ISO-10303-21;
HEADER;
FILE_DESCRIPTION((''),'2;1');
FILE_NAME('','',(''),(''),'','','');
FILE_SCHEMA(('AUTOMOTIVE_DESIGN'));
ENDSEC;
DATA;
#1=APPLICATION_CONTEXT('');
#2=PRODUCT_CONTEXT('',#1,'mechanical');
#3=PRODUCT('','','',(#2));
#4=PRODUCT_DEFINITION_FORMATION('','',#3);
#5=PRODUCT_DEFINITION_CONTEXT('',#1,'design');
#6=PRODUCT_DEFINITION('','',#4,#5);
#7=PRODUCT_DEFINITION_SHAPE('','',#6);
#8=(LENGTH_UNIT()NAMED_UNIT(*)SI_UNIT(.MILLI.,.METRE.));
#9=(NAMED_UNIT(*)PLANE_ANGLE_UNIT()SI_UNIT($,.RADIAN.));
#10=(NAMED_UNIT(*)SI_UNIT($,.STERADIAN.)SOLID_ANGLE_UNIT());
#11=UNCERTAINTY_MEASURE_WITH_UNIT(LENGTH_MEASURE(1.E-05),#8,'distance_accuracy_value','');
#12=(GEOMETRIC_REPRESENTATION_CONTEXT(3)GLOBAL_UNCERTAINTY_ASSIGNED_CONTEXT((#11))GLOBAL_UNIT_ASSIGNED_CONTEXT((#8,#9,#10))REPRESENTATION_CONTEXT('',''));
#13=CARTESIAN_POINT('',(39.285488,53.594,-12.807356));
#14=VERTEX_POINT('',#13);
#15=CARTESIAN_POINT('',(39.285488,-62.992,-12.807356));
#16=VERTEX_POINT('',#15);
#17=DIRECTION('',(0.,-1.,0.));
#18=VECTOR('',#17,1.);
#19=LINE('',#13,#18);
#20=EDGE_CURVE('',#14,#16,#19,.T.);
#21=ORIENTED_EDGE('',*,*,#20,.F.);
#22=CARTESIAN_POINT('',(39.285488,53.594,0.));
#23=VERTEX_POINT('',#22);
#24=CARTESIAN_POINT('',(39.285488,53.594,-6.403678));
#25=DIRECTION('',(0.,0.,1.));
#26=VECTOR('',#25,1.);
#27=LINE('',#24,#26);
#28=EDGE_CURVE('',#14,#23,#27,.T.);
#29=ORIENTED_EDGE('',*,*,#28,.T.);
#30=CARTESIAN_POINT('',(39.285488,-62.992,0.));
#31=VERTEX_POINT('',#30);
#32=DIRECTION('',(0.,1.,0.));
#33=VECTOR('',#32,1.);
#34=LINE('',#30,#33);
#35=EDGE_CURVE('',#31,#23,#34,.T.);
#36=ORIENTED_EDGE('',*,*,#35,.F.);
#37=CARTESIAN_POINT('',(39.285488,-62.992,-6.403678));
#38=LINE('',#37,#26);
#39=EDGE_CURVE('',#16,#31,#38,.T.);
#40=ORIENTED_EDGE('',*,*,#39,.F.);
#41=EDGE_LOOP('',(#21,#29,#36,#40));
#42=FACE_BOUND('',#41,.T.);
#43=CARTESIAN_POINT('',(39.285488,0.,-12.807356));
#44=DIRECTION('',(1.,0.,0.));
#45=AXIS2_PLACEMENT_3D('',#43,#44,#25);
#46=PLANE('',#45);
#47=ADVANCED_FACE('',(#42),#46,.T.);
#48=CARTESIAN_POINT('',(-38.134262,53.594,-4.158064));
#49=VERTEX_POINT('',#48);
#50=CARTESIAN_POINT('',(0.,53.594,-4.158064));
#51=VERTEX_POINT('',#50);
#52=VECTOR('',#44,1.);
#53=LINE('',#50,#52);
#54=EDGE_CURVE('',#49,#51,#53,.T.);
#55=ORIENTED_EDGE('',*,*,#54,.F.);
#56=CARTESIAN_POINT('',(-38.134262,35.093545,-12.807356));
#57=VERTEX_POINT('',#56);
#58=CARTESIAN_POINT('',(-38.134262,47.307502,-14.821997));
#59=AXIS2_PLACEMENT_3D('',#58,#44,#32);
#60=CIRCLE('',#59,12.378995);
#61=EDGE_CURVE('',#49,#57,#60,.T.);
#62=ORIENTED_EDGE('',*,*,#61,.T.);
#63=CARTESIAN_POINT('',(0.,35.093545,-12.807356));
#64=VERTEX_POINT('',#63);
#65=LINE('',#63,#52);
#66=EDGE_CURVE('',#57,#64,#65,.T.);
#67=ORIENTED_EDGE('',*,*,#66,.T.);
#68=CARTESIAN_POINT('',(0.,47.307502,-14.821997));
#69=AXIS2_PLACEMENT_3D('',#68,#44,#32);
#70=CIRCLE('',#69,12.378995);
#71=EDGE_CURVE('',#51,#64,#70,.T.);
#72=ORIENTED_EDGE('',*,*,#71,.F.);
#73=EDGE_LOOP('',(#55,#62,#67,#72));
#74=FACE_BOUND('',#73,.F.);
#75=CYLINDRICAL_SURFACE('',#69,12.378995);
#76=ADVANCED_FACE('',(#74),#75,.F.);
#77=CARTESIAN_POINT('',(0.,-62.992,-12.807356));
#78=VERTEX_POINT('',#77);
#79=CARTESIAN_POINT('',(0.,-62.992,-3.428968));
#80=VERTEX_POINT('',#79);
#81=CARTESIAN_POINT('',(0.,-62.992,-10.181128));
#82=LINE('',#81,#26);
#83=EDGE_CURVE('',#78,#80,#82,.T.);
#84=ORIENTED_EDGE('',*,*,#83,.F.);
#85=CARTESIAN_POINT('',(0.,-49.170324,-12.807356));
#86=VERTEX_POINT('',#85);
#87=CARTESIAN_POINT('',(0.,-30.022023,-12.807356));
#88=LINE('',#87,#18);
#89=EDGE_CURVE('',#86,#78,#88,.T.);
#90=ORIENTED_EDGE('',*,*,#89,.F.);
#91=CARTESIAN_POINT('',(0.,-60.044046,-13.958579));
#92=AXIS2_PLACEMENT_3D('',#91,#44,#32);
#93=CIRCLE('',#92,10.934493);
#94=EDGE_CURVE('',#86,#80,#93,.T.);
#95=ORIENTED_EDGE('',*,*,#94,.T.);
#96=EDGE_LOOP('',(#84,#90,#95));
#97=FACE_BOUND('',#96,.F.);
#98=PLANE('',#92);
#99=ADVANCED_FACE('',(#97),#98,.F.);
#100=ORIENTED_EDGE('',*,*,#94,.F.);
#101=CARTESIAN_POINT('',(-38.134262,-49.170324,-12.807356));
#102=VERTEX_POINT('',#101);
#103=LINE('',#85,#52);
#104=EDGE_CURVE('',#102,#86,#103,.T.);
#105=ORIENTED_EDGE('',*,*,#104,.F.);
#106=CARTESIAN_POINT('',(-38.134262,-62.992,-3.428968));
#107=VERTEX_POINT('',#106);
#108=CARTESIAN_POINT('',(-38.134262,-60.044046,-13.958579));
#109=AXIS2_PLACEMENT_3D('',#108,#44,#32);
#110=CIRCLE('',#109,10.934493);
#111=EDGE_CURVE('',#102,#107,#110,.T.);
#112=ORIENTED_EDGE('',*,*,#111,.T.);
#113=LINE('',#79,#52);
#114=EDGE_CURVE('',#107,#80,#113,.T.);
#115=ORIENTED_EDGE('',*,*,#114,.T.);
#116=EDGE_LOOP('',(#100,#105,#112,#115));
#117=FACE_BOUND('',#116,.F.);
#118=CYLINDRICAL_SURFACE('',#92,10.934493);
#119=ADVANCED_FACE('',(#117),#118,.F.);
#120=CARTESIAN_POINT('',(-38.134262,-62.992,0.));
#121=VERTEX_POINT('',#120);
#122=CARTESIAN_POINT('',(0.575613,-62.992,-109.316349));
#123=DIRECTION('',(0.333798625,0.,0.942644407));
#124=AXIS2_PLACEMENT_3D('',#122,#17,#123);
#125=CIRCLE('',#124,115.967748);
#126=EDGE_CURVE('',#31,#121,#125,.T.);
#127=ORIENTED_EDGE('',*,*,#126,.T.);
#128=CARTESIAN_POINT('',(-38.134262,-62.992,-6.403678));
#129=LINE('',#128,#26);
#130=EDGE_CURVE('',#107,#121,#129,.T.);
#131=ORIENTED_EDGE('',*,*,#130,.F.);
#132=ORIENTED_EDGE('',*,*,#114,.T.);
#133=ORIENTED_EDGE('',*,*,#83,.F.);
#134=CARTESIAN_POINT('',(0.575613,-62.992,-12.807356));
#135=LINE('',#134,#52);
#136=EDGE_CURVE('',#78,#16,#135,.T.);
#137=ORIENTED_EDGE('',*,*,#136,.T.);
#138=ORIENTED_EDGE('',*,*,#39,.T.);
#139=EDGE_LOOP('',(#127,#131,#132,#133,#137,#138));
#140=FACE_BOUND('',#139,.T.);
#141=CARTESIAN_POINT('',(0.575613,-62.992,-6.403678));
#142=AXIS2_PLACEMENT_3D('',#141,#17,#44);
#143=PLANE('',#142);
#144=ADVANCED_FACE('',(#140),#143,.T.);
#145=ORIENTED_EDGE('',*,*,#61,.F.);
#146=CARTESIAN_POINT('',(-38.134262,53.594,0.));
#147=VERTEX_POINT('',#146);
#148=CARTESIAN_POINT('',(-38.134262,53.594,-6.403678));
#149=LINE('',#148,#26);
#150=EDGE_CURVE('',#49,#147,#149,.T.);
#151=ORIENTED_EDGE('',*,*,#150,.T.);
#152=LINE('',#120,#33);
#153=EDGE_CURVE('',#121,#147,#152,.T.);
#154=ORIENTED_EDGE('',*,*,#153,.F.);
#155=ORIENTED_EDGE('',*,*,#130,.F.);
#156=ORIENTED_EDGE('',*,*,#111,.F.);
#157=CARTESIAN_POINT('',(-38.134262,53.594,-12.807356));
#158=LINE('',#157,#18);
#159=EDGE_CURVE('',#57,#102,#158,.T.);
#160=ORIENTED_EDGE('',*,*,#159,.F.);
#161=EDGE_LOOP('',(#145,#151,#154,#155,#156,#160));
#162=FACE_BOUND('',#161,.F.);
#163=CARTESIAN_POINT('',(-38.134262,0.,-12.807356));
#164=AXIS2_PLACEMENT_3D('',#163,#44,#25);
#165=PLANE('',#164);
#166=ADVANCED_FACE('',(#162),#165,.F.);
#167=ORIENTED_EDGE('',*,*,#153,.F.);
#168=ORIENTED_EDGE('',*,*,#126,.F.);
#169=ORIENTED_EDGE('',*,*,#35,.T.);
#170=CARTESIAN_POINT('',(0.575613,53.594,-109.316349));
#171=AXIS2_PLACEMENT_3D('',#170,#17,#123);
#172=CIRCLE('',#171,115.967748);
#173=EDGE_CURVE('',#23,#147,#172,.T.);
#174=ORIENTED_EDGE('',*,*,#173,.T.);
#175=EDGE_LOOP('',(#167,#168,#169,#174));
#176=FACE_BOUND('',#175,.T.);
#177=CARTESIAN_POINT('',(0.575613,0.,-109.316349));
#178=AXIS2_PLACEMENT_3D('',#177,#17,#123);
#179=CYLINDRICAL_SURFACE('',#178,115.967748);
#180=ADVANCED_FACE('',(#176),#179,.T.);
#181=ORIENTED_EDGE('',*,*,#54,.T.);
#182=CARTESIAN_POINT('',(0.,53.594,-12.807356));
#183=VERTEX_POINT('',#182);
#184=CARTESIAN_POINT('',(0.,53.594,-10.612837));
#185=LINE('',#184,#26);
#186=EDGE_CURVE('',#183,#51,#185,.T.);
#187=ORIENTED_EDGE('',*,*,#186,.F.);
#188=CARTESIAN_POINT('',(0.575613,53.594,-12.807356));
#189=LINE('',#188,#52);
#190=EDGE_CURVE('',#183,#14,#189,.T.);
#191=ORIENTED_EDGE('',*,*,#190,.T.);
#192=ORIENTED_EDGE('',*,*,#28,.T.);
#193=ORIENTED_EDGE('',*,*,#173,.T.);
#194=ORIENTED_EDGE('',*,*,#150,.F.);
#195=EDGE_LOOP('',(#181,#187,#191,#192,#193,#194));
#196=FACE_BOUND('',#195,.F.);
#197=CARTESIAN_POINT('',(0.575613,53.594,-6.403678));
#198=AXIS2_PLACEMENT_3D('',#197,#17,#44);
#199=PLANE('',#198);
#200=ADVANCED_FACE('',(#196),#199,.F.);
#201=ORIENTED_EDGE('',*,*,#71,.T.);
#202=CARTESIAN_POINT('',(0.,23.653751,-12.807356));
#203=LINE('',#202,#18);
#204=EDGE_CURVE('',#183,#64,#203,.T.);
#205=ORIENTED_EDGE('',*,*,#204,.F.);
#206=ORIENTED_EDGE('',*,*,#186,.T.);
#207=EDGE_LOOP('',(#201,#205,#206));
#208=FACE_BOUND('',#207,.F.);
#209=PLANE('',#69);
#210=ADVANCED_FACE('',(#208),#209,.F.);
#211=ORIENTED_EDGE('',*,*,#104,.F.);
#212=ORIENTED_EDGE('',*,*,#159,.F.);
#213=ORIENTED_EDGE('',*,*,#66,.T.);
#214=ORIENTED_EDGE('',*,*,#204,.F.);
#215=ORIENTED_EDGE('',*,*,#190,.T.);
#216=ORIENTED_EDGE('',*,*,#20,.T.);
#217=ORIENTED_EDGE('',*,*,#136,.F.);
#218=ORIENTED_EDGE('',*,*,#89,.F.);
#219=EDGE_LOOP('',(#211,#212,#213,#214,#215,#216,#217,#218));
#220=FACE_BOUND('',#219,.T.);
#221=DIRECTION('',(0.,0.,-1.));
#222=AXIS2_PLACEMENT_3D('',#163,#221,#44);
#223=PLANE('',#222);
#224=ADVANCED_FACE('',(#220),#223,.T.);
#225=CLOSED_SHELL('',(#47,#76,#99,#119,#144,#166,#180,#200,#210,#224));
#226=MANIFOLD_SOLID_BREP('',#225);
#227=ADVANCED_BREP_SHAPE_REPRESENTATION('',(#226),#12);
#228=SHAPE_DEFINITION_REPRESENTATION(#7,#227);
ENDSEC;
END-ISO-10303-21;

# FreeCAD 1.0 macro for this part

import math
import FreeCAD as App
import Part
import Sketcher
from FreeCAD import Vector
Q = App.Units.Quantity

doc = App.newDocument("Part")
body = doc.addObject("PartDesign::Body", "Body")

sketch1 = body.newObject("Sketcher::SketchObject", "Sketch")
sketch1.AttachmentSupport = (doc.getObject("XZ_Plane"), [""])
sketch1.MapMode = "FlatFace"
sketch1.addGeometry([
    Part.LineSegment(Vector(-38, 0, 0), Vector(-38, -13, 0)),
    Part.LineSegment(Vector(-38, -13, 0), Vector(39, -13, 0)),
    Part.LineSegment(Vector(39, -13, 0), Vector(39, 0, 0)),
    Part.ArcOfCircle(Part.Circle(Vector(1, -109, 0), Vector(0, 0, 1), 116), math.radians(71), math.radians(109)),
], False)
sketch1.addConstraint([
    Sketcher.Constraint("Coincident", 0, 2, 1, 1),
    Sketcher.Constraint("Coincident", 1, 2, 2, 1),
    Sketcher.Constraint("Coincident", 2, 2, 3, 1),
    Sketcher.Constraint("Coincident", 3, 2, 0, 1),
    Sketcher.Constraint("Vertical", 0),
    Sketcher.Constraint("Horizontal", 1),
    Sketcher.Constraint("Vertical", 2),
    Sketcher.Constraint("PointOnObject", 2, 2, -1),
    Sketcher.Constraint("PointOnObject", 3, 2, -1),
    Sketcher.Constraint("Radius", 3, 115.967748),
    Sketcher.Constraint("DistanceX", 1, 1, 1, 2, 77.41975),
    Sketcher.Constraint("DistanceY", 0, 2, 0, 1, 12.807356),
    Sketcher.Constraint("DistanceX", -1, 1, 3, 3, 0.575613),
])
pad1 = body.newObject("PartDesign::Pad", "Pad")
pad1.Profile = sketch1
pad1.Type = "TwoLengths"
pad1.Length = Q("2.48 in")
pad1.Length2 = Q("2.11 in")

sketch2 = body.newObject("Sketcher::SketchObject", "Sketch001")
sketch2.AttachmentSupport = (doc.getObject("YZ_Plane"), [""])
sketch2.MapMode = "FlatFace"
sketch2.addGeometry([
    Part.Circle(Vector(-60, -14, 0), Vector(0, 0, 1), 11),
    Part.Circle(Vector(47, -15, 0), Vector(0, 0, 1), 12),
], False)
sketch2.addConstraint([
    Sketcher.Constraint("Diameter", 1, 24.75799),
    Sketcher.Constraint("Diameter", 0, 21.868986),
    Sketcher.Constraint("DistanceX", -1, 1, 1, 3, Q("1.8625001 in")),
    Sketcher.Constraint("DistanceY", 0, 3, -1, 1, 13.958579),
    Sketcher.Constraint("DistanceX", 0, 3, 1, 3, 107.351548),
    Sketcher.Constraint("DistanceY", 1, 3, -1, 1, 14.821997),
])
pocket1 = body.newObject("PartDesign::Pocket", "Pocket")
pocket1.Profile = sketch2
pocket1.Length = Q("1.85 in")

doc.recompute()
